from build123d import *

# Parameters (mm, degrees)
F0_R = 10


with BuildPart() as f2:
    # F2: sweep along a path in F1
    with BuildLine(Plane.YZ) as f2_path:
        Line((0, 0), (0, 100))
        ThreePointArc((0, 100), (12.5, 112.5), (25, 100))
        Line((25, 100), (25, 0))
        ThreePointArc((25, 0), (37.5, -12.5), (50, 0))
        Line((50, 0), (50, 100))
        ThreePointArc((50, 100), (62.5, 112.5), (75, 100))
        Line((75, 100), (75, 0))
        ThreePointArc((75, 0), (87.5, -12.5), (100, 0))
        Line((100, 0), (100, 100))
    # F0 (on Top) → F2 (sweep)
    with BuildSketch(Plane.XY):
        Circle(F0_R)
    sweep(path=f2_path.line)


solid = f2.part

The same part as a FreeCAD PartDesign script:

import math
import FreeCAD as App
import Part
import Sketcher

doc = App.newDocument("Part")
body = doc.addObject("PartDesign::Body", "Body")

# Sketch on XY plane
sketch1 = body.newObject("Sketcher::SketchObject", "Sketch")
sketch1.AttachmentSupport = (doc.getObject("XY_Plane"), [""])
sketch1.MapMode = "FlatFace"
sketch1.addGeometry(Part.Circle(App.Vector(0, 0, 0), App.Vector(0, 0, 1), 10), False)
sketch1.addConstraint(Sketcher.Constraint("Coincident", 0, 3, -1, 1))
sketch1.addConstraint(Sketcher.Constraint("Diameter", 0, 20.0))

# Sketch on YZ plane
sketch2 = body.newObject("Sketcher::SketchObject", "Sketch001")
sketch2.AttachmentSupport = (doc.getObject("YZ_Plane"), [""])
sketch2.MapMode = "FlatFace"
sketch2.addGeometry(Part.LineSegment(App.Vector(0, 0, 0), App.Vector(0, 100, 0)), False)
sketch2.addGeometry(Part.ArcOfCircle(Part.Circle(App.Vector(12.5, 100, 0), App.Vector(0, 0, 1), 12.5), math.radians(0), math.radians(180)), False)
sketch2.addGeometry(Part.LineSegment(App.Vector(25, 100, 0), App.Vector(25, 0, 0)), False)
sketch2.addGeometry(Part.ArcOfCircle(Part.Circle(App.Vector(37.5, 0, 0), App.Vector(0, 0, 1), 12.5), math.radians(180), math.radians(360)), False)
sketch2.addGeometry(Part.LineSegment(App.Vector(50, 0, 0), App.Vector(50, 100, 0)), False)
sketch2.addGeometry(Part.ArcOfCircle(Part.Circle(App.Vector(62.5, 100, 0), App.Vector(0, 0, 1), 12.5), math.radians(0), math.radians(180)), False)
sketch2.addGeometry(Part.LineSegment(App.Vector(75, 100, 0), App.Vector(75, 0, 0)), False)
sketch2.addGeometry(Part.ArcOfCircle(Part.Circle(App.Vector(87.5, 0, 0), App.Vector(0, 0, 1), 12.5), math.radians(180), math.radians(360)), False)
sketch2.addGeometry(Part.LineSegment(App.Vector(100, 0, 0), App.Vector(100, 100, 0)), False)
sketch2.addConstraint(Sketcher.Constraint("Tangent", 0, 2, 1, 2))
sketch2.addConstraint(Sketcher.Constraint("Tangent", 1, 1, 2, 1))
sketch2.addConstraint(Sketcher.Constraint("Tangent", 2, 2, 3, 1))
sketch2.addConstraint(Sketcher.Constraint("Tangent", 3, 2, 4, 1))
sketch2.addConstraint(Sketcher.Constraint("Tangent", 4, 2, 5, 2))
sketch2.addConstraint(Sketcher.Constraint("Tangent", 5, 1, 6, 1))
sketch2.addConstraint(Sketcher.Constraint("Tangent", 6, 2, 7, 1))
sketch2.addConstraint(Sketcher.Constraint("Tangent", 7, 2, 8, 1))
sketch2.addConstraint(Sketcher.Constraint("Vertical", 0))
sketch2.addConstraint(Sketcher.Constraint("Vertical", 2))
sketch2.addConstraint(Sketcher.Constraint("Vertical", 4))
sketch2.addConstraint(Sketcher.Constraint("Vertical", 6))
sketch2.addConstraint(Sketcher.Constraint("Vertical", 8))
sketch2.addConstraint(Sketcher.Constraint("Coincident", 0, 1, -1, 1))
sketch2.addConstraint(Sketcher.Constraint("Equal", 1, 3))
sketch2.addConstraint(Sketcher.Constraint("Equal", 3, 5))
sketch2.addConstraint(Sketcher.Constraint("Equal", 5, 7))
sketch2.addConstraint(Sketcher.Constraint("PointOnObject", 3, 3, -1))
sketch2.addConstraint(Sketcher.Constraint("PointOnObject", 7, 3, -1))
sketch2.addConstraint(Sketcher.Constraint("Horizontal", 1, 3, 5, 3))
sketch2.addConstraint(Sketcher.Constraint("Horizontal", 5, 1, 8, 2))
sketch2.addConstraint(Sketcher.Constraint("Radius", 1, 12.5))
sketch2.addConstraint(Sketcher.Constraint("DistanceY", 0, 1, 0, 2, 100.0))
doc.recompute()

additivepipe = body.newObject("PartDesign::AdditivePipe", "AdditivePipe")
additivepipe.Profile = sketch1
additivepipe.Spine = (sketch2, ["Edge1", "Edge2", "Edge3", "Edge4", "Edge5", "Edge6", "Edge7", "Edge8", "Edge9"])

doc.recompute()
